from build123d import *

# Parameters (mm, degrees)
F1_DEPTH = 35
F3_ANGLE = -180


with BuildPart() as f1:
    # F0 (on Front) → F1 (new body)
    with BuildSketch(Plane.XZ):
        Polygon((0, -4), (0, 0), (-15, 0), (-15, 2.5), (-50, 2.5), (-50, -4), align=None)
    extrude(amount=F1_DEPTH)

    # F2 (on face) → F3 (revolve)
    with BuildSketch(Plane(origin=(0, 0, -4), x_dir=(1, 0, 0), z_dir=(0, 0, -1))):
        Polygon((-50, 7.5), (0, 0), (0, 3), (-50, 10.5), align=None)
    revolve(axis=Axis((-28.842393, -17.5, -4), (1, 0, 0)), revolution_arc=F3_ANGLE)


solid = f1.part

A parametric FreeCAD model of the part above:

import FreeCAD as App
import Part
import Sketcher
from FreeCAD import Vector

doc = App.newDocument("Part")
body = doc.addObject("PartDesign::Body", "Body")

# Sketch on XZ plane
sketch1 = body.newObject("Sketcher::SketchObject", "Sketch")
sketch1.AttachmentSupport = (doc.getObject("XZ_Plane"), [""])
sketch1.MapMode = "FlatFace"
sketch1.addGeometry(Part.LineSegment(Vector(0, -4, 0), Vector(0, 0, 0)), False)
sketch1.addGeometry(Part.LineSegment(Vector(0, 0, 0), Vector(-15, 0, 0)), False)
sketch1.addGeometry(Part.LineSegment(Vector(-15, 0, 0), Vector(-15, 2.5, 0)), False)
sketch1.addGeometry(Part.LineSegment(Vector(-15, 2.5, 0), Vector(-50, 2.5, 0)), False)
sketch1.addGeometry(Part.LineSegment(Vector(-50, 2.5, 0), Vector(-50, -4, 0)), False)
sketch1.addGeometry(Part.LineSegment(Vector(-50, -4, 0), Vector(0, -4, 0)), False)
sketch1.addConstraint(Sketcher.Constraint("Coincident", 0, 2, 1, 1))
sketch1.addConstraint(Sketcher.Constraint("Coincident", 1, 2, 2, 1))
sketch1.addConstraint(Sketcher.Constraint("Coincident", 2, 2, 3, 1))
sketch1.addConstraint(Sketcher.Constraint("Coincident", 3, 2, 4, 1))
sketch1.addConstraint(Sketcher.Constraint("Coincident", 4, 2, 5, 1))
sketch1.addConstraint(Sketcher.Constraint("Coincident", 5, 2, 0, 1))
sketch1.addConstraint(Sketcher.Constraint("Vertical", 0))
sketch1.addConstraint(Sketcher.Constraint("Horizontal", 1))
sketch1.addConstraint(Sketcher.Constraint("Vertical", 2))
sketch1.addConstraint(Sketcher.Constraint("Horizontal", 3))
sketch1.addConstraint(Sketcher.Constraint("Vertical", 4))
sketch1.addConstraint(Sketcher.Constraint("Horizontal", 5))
sketch1.addConstraint(Sketcher.Constraint("Coincident", 0, 2, -1, 1))
sketch1.addConstraint(Sketcher.Constraint("DistanceX", 1, 2, 1, 1, 15.0))
sketch1.addConstraint(Sketcher.Constraint("DistanceX", 3, 2, 3, 1, 35.0))
sketch1.addConstraint(Sketcher.Constraint("DistanceY", 0, 1, 0, 2, 4.0))
sketch1.addConstraint(Sketcher.Constraint("DistanceY", 2, 1, 2, 2, 2.5))
pad1 = body.newObject("PartDesign::Pad", "Pad")
pad1.Profile = sketch1
pad1.Length = 35

# Sketch on XY plane
sketch2 = body.newObject("Sketcher::SketchObject", "Sketch001")
sketch2.AttachmentSupport = (doc.getObject("XY_Plane"), [""])
sketch2.MapMode = "FlatFace"
sketch2.AttachmentOffset = App.Placement(Vector(0, 0, -4), App.Rotation())
sketch2.addGeometry(Part.LineSegment(Vector(-50, -7.5, 0), Vector(0, 0, 0)), False)
sketch2.addGeometry(Part.LineSegment(Vector(0, 0, 0), Vector(0, -3, 0)), False)
sketch2.addGeometry(Part.LineSegment(Vector(0, -3, 0), Vector(-50, -10.5, 0)), False)
sketch2.addGeometry(Part.LineSegment(Vector(-50, -10.5, 0), Vector(-50, -7.5, 0)), False)
sketch2.addGeometry(Part.LineSegment(Vector(-50, -17.5, 0), Vector(0, -17.5, 0)), True)  # axis
sketch2.addConstraint(Sketcher.Constraint("Coincident", 0, 2, 1, 1))
sketch2.addConstraint(Sketcher.Constraint("Coincident", 1, 2, 2, 1))
sketch2.addConstraint(Sketcher.Constraint("Coincident", 2, 2, 3, 1))
sketch2.addConstraint(Sketcher.Constraint("Coincident", 3, 2, 0, 1))
sketch2.addConstraint(Sketcher.Constraint("Vertical", 1))
sketch2.addConstraint(Sketcher.Constraint("Vertical", 3))
sketch2.addConstraint(Sketcher.Constraint("Horizontal", 4))
sketch2.addConstraint(Sketcher.Constraint("Coincident", 0, 2, -1, 1))
sketch2.addConstraint(Sketcher.Constraint("PointOnObject", 4, 2, -2))
sketch2.addConstraint(Sketcher.Constraint("Parallel", 0, 2))
sketch2.addConstraint(Sketcher.Constraint("Vertical", 3, 2, 4, 1))
sketch2.addConstraint(Sketcher.Constraint("DistanceX", 4, 1, 4, 2, 50.0))
sketch2.addConstraint(Sketcher.Constraint("DistanceY", 1, 2, 1, 1, 3.0))
sketch2.addConstraint(Sketcher.Constraint("DistanceY", 4, 1, 2, 2, 7.0))
sketch2.addConstraint(Sketcher.Constraint("DistanceY", 2, 2, -1, 1, 10.5))
revolution = body.newObject("PartDesign::Revolution", "Revolution")
revolution.Profile = sketch2
revolution.ReferenceAxis = (sketch2, ["Axis0"])
revolution.Angle = 180
revolution.Reversed = True

doc.recompute()
